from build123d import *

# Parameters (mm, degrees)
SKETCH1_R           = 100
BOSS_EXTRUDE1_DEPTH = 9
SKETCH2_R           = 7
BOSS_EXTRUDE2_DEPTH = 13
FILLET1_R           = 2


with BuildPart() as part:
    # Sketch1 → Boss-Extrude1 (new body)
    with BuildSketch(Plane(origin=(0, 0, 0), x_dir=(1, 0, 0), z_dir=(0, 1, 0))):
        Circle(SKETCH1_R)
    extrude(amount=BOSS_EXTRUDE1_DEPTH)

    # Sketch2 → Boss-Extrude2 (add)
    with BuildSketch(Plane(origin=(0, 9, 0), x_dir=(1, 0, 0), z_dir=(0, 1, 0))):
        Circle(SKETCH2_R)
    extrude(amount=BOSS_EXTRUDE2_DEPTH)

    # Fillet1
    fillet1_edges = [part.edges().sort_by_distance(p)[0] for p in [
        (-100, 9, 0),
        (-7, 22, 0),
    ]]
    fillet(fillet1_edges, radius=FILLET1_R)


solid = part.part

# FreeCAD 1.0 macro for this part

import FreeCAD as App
import Part
import Sketcher

V = App.Vector
Q = App.Units.Quantity


def edges_at(feature, points):
    """Names of the edges that pass closest to the given points."""
    edges = feature.Shape.Edges
    near = lambda p: min(range(len(edges)), key=lambda i: edges[i].distToShape(Part.Vertex(*p))[0])
    return sorted({f"Edge{near(p) + 1}" for p in points})

doc = App.newDocument("Part")
body = doc.addObject("PartDesign::Body", "Body")

sketch1 = body.newObject("Sketcher::SketchObject", "Sketch")
sketch1.AttachmentSupport = (doc.getObject("XZ_Plane"), [""])
sketch1.MapMode = "FlatFace"
sketch1.addGeometry(Part.Circle(V(0, 0, 0), V(0, 0, 1), 100), False)
sketch1.addConstraint(Sketcher.Constraint("Coincident", 0, 3, -1, 1))
sketch1.addConstraint(Sketcher.Constraint("Diameter", 0, Q("200 mm")))
pad1 = body.newObject("PartDesign::Pad", "Pad")
pad1.Profile = sketch1
pad1.Length = 9
pad1.Reversed = True

sketch2 = body.newObject("Sketcher::SketchObject", "Sketch001")
sketch2.AttachmentSupport = (doc.getObject("XZ_Plane"), [""])
sketch2.MapMode = "FlatFace"
sketch2.AttachmentOffset = App.Placement(V(0, 0, -9), App.Rotation())
sketch2.addGeometry(Part.Circle(V(0, 0, 0), V(0, 0, 1), 7), False)
sketch2.addConstraint(Sketcher.Constraint("Coincident", 0, 3, -1, 1))
sketch2.addConstraint(Sketcher.Constraint("Diameter", 0, Q("14 mm")))
pad2 = body.newObject("PartDesign::Pad", "Pad001")
pad2.Profile = sketch2
pad2.Length = 13
pad2.Reversed = True
doc.recompute()

fillet = body.newObject("PartDesign::Fillet", "Fillet")
fillet.Base = (pad2, edges_at(pad2, [(-100, 9, 0), (-7, 22, 0)]))
fillet.Radius = 2

doc.recompute()
